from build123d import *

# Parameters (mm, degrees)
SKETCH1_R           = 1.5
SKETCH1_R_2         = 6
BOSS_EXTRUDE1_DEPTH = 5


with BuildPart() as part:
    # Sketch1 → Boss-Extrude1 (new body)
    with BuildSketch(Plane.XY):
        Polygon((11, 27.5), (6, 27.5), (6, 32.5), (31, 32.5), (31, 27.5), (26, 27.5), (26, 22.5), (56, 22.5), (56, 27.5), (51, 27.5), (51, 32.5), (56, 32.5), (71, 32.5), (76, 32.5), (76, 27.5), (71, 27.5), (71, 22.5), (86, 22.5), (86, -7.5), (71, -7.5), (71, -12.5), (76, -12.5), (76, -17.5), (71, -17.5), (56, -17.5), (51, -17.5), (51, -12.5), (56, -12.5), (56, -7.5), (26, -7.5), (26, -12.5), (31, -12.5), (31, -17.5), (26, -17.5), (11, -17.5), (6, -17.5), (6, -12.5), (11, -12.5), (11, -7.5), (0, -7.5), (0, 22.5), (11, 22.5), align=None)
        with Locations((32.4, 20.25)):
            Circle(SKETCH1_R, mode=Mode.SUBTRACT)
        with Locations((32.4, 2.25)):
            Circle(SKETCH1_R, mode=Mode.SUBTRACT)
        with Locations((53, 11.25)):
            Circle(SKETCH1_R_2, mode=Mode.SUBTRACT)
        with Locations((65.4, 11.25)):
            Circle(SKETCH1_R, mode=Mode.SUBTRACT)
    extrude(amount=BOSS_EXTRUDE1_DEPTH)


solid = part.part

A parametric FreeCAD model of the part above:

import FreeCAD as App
import Part
import Sketcher


def add_polygon(sketch, points):
    """Adds a closed chain of lines whose ends are joined by coincident constraints."""
    first, n = sketch.GeometryCount, len(points)
    for a, b in zip(points, points[1:] + points[:1]):
        sketch.addGeometry(Part.LineSegment(App.Vector(*a, 0), App.Vector(*b, 0)), False)
    for i in range(n):
        sketch.addConstraint(Sketcher.Constraint("Coincident", first + i, 2, first + (i + 1) % n, 1))

doc = App.newDocument("Part")
body = doc.addObject("PartDesign::Body", "Body")

sketch1 = body.newObject("Sketcher::SketchObject", "Sketch")
sketch1.AttachmentSupport = (doc.getObject("XY_Plane"), [""])
sketch1.MapMode = "FlatFace"
add_polygon(sketch1, [(6, 27.5), (11, 27.5), (11, 22.5), (0, 22.5), (0, -7.5), (11, -7.5), (11, -12.5), (6, -12.5), (6, -17.5), (31, -17.5), (31, -12.5), (26, -12.5), (26, -7.5), (56, -7.5), (56, -12.5), (51, -12.5), (51, -17.5), (76, -17.5), (76, -12.5), (71, -12.5), (71, -7.5), (86, -7.5), (86, 22.5), (71, 22.5), (71, 27.5), (76, 27.5), (76, 32.5), (51, 32.5), (51, 27.5), (56, 27.5), (56, 22.5), (26, 22.5), (26, 27.5), (31, 27.5), (31, 32.5), (6, 32.5)])
sketch1.addGeometry(Part.Circle(App.Vector(32.4, 2.2, 0), App.Vector(0, 0, 1), 1.5), False)
sketch1.addGeometry(Part.Circle(App.Vector(65.4, 11.2, 0), App.Vector(0, 0, 1), 1.5), False)
sketch1.addGeometry(Part.Circle(App.Vector(53, 11.2, 0), App.Vector(0, 0, 1), 6), False)
sketch1.addGeometry(Part.Circle(App.Vector(32.4, 20.2, 0), App.Vector(0, 0, 1), 1.5), False)
sketch1.addConstraint(Sketcher.Constraint("Horizontal", 0))
sketch1.addConstraint(Sketcher.Constraint("Vertical", 1))
sketch1.addConstraint(Sketcher.Constraint("Horizontal", 2))
sketch1.addConstraint(Sketcher.Constraint("Vertical", 3))
sketch1.addConstraint(Sketcher.Constraint("Horizontal", 4))
sketch1.addConstraint(Sketcher.Constraint("Vertical", 5))
sketch1.addConstraint(Sketcher.Constraint("Horizontal", 6))
sketch1.addConstraint(Sketcher.Constraint("Vertical", 7))
sketch1.addConstraint(Sketcher.Constraint("Horizontal", 8))
sketch1.addConstraint(Sketcher.Constraint("Vertical", 9))
sketch1.addConstraint(Sketcher.Constraint("Horizontal", 10))
sketch1.addConstraint(Sketcher.Constraint("Vertical", 11))
sketch1.addConstraint(Sketcher.Constraint("Horizontal", 12))
sketch1.addConstraint(Sketcher.Constraint("Vertical", 13))
sketch1.addConstraint(Sketcher.Constraint("Horizontal", 14))
sketch1.addConstraint(Sketcher.Constraint("Vertical", 15))
sketch1.addConstraint(Sketcher.Constraint("Horizontal", 16))
sketch1.addConstraint(Sketcher.Constraint("Vertical", 17))
sketch1.addConstraint(Sketcher.Constraint("Horizontal", 18))
sketch1.addConstraint(Sketcher.Constraint("Vertical", 19))
sketch1.addConstraint(Sketcher.Constraint("Horizontal", 20))
sketch1.addConstraint(Sketcher.Constraint("Vertical", 21))
sketch1.addConstraint(Sketcher.Constraint("Horizontal", 22))
sketch1.addConstraint(Sketcher.Constraint("Vertical", 23))
sketch1.addConstraint(Sketcher.Constraint("Horizontal", 24))
sketch1.addConstraint(Sketcher.Constraint("Vertical", 25))
sketch1.addConstraint(Sketcher.Constraint("Horizontal", 26))
sketch1.addConstraint(Sketcher.Constraint("Vertical", 27))
sketch1.addConstraint(Sketcher.Constraint("Horizontal", 28))
sketch1.addConstraint(Sketcher.Constraint("Vertical", 29))
sketch1.addConstraint(Sketcher.Constraint("Horizontal", 30))
sketch1.addConstraint(Sketcher.Constraint("Vertical", 31))
sketch1.addConstraint(Sketcher.Constraint("Horizontal", 32))
sketch1.addConstraint(Sketcher.Constraint("Vertical", 33))
sketch1.addConstraint(Sketcher.Constraint("Horizontal", 34))
sketch1.addConstraint(Sketcher.Constraint("Vertical", 35))
sketch1.addConstraint(Sketcher.Constraint("Equal", 36, 37))
sketch1.addConstraint(Sketcher.Constraint("Equal", 37, 39))
sketch1.addConstraint(Sketcher.Constraint("PointOnObject", 2, 2, -2))
sketch1.addConstraint(Sketcher.Constraint("Horizontal", 37, 3, 38, 3))
sketch1.addConstraint(Sketcher.Constraint("Horizontal", 6, 2, 9, 2))
sketch1.addConstraint(Sketcher.Constraint("Horizontal", 4, 2, 11, 2))
sketch1.addConstraint(Sketcher.Constraint("Horizontal", 10, 2, 13, 2))
sketch1.addConstraint(Sketcher.Constraint("Horizontal", 8, 2, 15, 2))
sketch1.addConstraint(Sketcher.Constraint("Horizontal", 14, 2, 17, 2))
sketch1.addConstraint(Sketcher.Constraint("Horizontal", 12, 2, 19, 2))
sketch1.addConstraint(Sketcher.Constraint("Horizontal", 2, 2, 21, 2))
sketch1.addConstraint(Sketcher.Constraint("Horizontal", 0, 2, 23, 2))
sketch1.addConstraint(Sketcher.Constraint("Horizontal", 24, 2, 27, 2))
sketch1.addConstraint(Sketcher.Constraint("Horizontal", 22, 2, 29, 2))
sketch1.addConstraint(Sketcher.Constraint("Horizontal", 28, 2, 31, 2))
sketch1.addConstraint(Sketcher.Constraint("Horizontal", 26, 2, 33, 2))
sketch1.addConstraint(Sketcher.Constraint("Vertical", 36, 3, 39, 3))
sketch1.addConstraint(Sketcher.Constraint("Vertical", 1, 2, 4, 2))
sketch1.addConstraint(Sketcher.Constraint("Vertical", 19, 2, 22, 2))
sketch1.addConstraint(Sketcher.Constraint("Vertical", 17, 2, 24, 2))
sketch1.addConstraint(Sketcher.Constraint("Vertical", 15, 2, 26, 2))
sketch1.addConstraint(Sketcher.Constraint("Vertical", 13, 2, 28, 2))
sketch1.addConstraint(Sketcher.Constraint("Vertical", 11, 2, 30, 2))
sketch1.addConstraint(Sketcher.Constraint("Vertical", 9, 2, 32, 2))
sketch1.addConstraint(Sketcher.Constraint("Vertical", 7, 2, 34, 2))
sketch1.addConstraint(Sketcher.Constraint("Equal", 6, 10))
sketch1.addConstraint(Sketcher.Constraint("Equal", 10, 14))
sketch1.addConstraint(Sketcher.Constraint("Equal", 8, 16))
sketch1.addConstraint(Sketcher.Constraint("Equal", 14, 18))
sketch1.addConstraint(Sketcher.Constraint("Equal", 32, 1))
sketch1.addConstraint(Sketcher.Constraint("Equal", 30, 3))
sketch1.addConstraint(Sketcher.Constraint("Equal", 1, 5))
sketch1.addConstraint(Sketcher.Constraint("Equal", 5, 7))
sketch1.addConstraint(Sketcher.Constraint("Equal", 23, 25))
sketch1.addConstraint(Sketcher.Constraint("Diameter", 36, 3.0))
sketch1.addConstraint(Sketcher.Constraint("Diameter", 38, 12.0))
sketch1.addConstraint(Sketcher.Constraint("DistanceX", 0, 1, 0, 2, 5.0))
sketch1.addConstraint(Sketcher.Constraint("DistanceX", 2, 2, 2, 1, 11.0))
sketch1.addConstraint(Sketcher.Constraint("DistanceX", 8, 1, 8, 2, 25.0))
sketch1.addConstraint(Sketcher.Constraint("DistanceX", 12, 1, 12, 2, 30.0))
sketch1.addConstraint(Sketcher.Constraint("DistanceX", 20, 1, 20, 2, 15.0))
sketch1.addConstraint(Sketcher.Constraint("DistanceX", -1, 1, 38, 3, 53.0))
sketch1.addConstraint(Sketcher.Constraint("DistanceX", 36, 3, 37, 3, 33.0))
sketch1.addConstraint(Sketcher.Constraint("DistanceY", 36, 3, 37, 3, 9.0))
sketch1.addConstraint(Sketcher.Constraint("DistanceY", 36, 3, 39, 3, 18.0))
sketch1.addConstraint(Sketcher.Constraint("DistanceX", -1, 1, 36, 3, 32.4))
sketch1.addConstraint(Sketcher.Constraint("DistanceY", -1, 1, 0, 2, 27.5))
sketch1.addConstraint(Sketcher.Constraint("DistanceY", -1, 1, 36, 3, 2.25))
pad1 = body.newObject("PartDesign::Pad", "Pad")
pad1.Profile = sketch1
pad1.Length = 5

doc.recompute()
